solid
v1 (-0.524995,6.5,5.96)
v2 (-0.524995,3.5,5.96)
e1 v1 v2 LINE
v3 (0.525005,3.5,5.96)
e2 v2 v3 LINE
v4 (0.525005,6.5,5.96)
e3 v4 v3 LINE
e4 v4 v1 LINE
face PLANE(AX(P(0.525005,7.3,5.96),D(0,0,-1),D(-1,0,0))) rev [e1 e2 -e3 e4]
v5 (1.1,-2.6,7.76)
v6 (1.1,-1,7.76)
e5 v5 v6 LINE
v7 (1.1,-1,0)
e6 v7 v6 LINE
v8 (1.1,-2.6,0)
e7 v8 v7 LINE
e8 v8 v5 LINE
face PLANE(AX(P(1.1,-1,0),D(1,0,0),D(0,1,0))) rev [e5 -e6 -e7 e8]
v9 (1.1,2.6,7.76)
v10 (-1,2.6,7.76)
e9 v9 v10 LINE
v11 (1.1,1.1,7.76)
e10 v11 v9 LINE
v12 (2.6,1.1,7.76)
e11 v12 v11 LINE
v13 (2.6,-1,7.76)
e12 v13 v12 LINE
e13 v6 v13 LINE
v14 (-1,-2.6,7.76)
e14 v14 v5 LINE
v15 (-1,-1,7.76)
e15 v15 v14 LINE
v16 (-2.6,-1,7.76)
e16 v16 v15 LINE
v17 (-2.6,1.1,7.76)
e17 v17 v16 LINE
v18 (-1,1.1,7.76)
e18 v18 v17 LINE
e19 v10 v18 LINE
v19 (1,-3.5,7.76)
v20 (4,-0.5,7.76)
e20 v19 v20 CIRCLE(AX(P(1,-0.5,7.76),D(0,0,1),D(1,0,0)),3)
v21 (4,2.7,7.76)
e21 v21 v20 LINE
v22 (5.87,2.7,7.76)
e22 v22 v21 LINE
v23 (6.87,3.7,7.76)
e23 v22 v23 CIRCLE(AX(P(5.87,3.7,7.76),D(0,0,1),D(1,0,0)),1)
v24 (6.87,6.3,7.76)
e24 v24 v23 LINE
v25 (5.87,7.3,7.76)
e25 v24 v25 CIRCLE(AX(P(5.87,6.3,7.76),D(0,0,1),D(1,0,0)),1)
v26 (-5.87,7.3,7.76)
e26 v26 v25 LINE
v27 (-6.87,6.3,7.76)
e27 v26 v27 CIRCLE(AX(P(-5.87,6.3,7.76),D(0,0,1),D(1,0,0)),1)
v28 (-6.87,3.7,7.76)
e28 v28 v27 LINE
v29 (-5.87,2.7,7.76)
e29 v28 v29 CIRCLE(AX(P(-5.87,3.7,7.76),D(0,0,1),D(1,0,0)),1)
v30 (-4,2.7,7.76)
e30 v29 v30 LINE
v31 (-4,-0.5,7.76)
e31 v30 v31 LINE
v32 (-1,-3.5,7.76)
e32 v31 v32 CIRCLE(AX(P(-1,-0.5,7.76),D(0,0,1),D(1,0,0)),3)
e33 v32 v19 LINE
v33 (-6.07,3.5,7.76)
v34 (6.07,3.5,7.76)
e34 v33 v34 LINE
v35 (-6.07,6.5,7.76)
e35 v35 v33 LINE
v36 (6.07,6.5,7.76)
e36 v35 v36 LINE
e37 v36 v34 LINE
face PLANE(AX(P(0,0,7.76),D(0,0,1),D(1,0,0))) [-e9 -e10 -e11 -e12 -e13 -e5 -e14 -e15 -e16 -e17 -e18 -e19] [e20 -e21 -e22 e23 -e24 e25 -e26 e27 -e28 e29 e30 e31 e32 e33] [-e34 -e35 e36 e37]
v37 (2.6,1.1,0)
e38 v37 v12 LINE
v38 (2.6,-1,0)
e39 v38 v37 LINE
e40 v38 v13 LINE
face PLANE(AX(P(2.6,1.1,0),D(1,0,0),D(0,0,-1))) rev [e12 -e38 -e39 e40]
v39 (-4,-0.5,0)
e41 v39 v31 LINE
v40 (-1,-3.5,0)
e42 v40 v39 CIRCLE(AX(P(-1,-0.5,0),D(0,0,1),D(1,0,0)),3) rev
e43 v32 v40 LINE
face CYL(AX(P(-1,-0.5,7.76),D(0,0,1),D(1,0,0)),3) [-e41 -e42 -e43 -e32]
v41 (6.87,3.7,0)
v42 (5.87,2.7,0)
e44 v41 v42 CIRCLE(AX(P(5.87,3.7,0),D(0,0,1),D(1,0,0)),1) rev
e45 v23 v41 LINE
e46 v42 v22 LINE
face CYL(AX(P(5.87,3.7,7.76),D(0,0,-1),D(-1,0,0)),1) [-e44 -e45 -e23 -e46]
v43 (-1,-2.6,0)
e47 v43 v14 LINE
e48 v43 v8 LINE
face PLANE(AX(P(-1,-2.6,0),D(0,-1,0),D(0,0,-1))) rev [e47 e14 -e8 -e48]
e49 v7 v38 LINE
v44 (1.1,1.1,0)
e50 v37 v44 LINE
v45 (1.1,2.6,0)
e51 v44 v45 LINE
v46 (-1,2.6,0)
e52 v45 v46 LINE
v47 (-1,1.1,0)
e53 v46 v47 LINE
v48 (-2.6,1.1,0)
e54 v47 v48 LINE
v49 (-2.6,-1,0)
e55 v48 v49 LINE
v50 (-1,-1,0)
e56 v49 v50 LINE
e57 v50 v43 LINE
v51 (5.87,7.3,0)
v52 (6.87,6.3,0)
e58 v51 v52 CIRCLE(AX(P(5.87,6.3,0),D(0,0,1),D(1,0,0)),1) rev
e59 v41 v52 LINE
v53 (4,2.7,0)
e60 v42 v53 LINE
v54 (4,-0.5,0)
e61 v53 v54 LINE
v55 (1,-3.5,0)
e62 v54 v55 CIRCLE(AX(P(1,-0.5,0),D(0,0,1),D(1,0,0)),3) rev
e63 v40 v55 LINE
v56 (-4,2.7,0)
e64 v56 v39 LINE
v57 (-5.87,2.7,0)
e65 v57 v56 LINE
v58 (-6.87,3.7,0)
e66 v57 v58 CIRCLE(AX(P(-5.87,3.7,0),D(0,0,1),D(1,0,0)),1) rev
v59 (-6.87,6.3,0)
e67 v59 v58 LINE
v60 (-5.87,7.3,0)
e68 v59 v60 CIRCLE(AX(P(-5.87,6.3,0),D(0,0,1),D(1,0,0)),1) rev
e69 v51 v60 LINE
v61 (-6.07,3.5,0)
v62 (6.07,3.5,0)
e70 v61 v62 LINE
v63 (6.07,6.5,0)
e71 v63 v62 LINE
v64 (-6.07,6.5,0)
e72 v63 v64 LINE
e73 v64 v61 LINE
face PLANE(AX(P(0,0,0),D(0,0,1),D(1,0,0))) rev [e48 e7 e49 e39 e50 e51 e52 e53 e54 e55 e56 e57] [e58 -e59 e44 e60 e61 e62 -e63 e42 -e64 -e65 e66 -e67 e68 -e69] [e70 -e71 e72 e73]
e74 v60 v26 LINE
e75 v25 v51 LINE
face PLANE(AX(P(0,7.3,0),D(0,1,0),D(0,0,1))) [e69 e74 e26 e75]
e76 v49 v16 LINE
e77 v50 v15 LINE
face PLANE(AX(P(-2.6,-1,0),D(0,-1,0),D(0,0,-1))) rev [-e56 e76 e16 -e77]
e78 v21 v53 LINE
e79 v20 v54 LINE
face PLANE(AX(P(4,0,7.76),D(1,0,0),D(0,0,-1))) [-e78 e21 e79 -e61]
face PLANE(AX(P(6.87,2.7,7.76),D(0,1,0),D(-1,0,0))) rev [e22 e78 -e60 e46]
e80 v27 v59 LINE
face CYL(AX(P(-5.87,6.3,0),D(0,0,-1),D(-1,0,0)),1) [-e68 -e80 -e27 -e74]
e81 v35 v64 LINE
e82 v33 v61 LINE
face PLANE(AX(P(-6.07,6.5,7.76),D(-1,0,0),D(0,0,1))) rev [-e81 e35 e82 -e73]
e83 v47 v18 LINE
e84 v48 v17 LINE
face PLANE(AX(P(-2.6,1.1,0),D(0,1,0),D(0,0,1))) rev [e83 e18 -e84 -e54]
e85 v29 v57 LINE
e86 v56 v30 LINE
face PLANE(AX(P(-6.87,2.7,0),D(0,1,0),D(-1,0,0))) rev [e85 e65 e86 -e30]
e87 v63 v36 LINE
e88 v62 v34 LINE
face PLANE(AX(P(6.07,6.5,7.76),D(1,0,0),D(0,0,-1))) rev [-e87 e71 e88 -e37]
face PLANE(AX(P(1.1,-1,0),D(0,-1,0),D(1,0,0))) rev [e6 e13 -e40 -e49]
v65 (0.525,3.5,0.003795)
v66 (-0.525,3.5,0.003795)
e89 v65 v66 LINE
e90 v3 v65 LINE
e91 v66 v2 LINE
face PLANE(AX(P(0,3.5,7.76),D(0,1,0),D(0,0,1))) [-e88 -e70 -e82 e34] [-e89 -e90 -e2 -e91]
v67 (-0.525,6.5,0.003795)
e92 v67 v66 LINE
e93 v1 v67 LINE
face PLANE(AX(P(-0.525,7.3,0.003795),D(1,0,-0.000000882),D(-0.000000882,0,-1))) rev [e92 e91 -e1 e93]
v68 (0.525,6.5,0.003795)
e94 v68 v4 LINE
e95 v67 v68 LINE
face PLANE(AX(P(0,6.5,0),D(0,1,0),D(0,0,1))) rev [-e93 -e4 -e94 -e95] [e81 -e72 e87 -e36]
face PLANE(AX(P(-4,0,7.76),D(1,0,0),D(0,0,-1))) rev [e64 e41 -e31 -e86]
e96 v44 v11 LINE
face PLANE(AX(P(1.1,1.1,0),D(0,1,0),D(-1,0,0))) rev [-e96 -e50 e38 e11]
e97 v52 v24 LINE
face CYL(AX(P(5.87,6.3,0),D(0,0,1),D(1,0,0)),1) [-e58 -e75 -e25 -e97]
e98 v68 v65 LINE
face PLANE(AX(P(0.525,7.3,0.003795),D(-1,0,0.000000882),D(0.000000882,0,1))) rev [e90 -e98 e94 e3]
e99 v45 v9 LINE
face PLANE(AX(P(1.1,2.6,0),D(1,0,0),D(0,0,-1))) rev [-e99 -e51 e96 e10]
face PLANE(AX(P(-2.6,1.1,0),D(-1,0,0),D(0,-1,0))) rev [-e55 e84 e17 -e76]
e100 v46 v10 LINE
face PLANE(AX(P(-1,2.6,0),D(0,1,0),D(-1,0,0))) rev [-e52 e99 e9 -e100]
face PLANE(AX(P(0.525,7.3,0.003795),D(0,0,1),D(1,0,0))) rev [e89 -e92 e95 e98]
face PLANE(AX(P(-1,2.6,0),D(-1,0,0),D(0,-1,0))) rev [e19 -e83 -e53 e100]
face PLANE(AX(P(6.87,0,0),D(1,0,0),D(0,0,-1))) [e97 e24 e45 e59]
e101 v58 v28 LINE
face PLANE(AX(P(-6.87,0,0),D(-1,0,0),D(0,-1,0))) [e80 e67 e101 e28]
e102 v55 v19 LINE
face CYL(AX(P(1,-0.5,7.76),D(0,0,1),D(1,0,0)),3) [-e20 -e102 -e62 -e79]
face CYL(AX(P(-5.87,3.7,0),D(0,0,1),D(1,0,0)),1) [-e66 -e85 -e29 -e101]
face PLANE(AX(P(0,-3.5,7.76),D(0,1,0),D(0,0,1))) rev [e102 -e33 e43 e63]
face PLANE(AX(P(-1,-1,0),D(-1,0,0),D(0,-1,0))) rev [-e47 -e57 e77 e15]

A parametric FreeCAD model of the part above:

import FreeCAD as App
import Part
import Sketcher

V = App.Vector


def edges_at(feature, points):
    """Names of the edges that pass closest to the given points."""
    edges = feature.Shape.Edges
    near = lambda p: min(range(len(edges)), key=lambda i: edges[i].distToShape(Part.Vertex(*p))[0])
    return sorted({f"Edge{near(p) + 1}" for p in points})

doc = App.newDocument("Part")
params = doc.addObject("Spreadsheet::Sheet", "Params")
for row, (alias, value) in enumerate([
    ("sketch1_width", "8 mm"),
    ("sketch1_height", "7 mm"),
    ("pad1_length", "7.76 mm"),
    ("sketch2_width", "1.5 mm"),
    ("sketch2_width2", "2.1 mm"),
    ("sketch2_width3", "1.6 mm"),
    ("sketch3_width", "0.8 mm"),
    ("sketch3_height", "7.76 mm"),
    ("pad2_length", "2.87 mm"),
    ("sketch4_width", "0.8 mm"),
    ("sketch4_height", "7.76 mm"),
    ("pad3_length", "2.87 mm"),
    ("sketch5_width", "0.8 mm"),
    ("sketch5_height", "7.76 mm"),
    ("pad4_length", "3 mm"),
    ("sketch6_width", "0.8 mm"),
    ("sketch6_height", "7.76 mm"),
    ("pad5_length", "3 mm"),
    ("sketch7_width", "13.74 mm"),
    ("sketch7_height", "7.76 mm"),
    ("pad6_length", "0.8 mm"),
    ("sketch8_width", "1.05 mm"),
    ("fillet_radius", "1 mm"),
    ("fillet2_radius", "1 mm"),
    ("fillet3_radius", "1 mm"),
    ("fillet4_radius", "1 mm"),
    ("fillet5_radius", "3 mm"),
    ("fillet6_radius", "3 mm"),
], start=1):
    params.set(f"A{row}", alias)
    params.set(f"B{row}", "=" + value)
    params.setAlias(f"B{row}", alias)

body = doc.addObject("PartDesign::Body", "Body")

sketch1 = body.newObject("Sketcher::SketchObject", "Sketch")
sketch1.AttachmentSupport = (doc.getObject("XY_Plane"), [""])
sketch1.MapMode = "FlatFace"
sketch1.addGeometry([
    Part.LineSegment(V(-4, 4, 0), V(-4, -4, 0)),
    Part.LineSegment(V(-4, -4, 0), V(4, -4, 0)),
    Part.LineSegment(V(4, -4, 0), V(4, 4, 0)),
    Part.LineSegment(V(4, 4, 0), V(-4, 4, 0)),
], False)
sketch1.addConstraint([
    Sketcher.Constraint("Coincident", 0, 2, 1, 1),
    Sketcher.Constraint("Coincident", 1, 2, 2, 1),
    Sketcher.Constraint("Coincident", 2, 2, 3, 1),
    Sketcher.Constraint("Coincident", 3, 2, 0, 1),
    Sketcher.Constraint("Vertical", 0),
    Sketcher.Constraint("Horizontal", 1),
    Sketcher.Constraint("Vertical", 2),
    Sketcher.Constraint("Horizontal", 3),
    Sketcher.Constraint("Symmetric", 0, 2, 2, 2, -1, 1),
    Sketcher.Constraint("DistanceX", 1, 1, 1, 2, 8.0),
    Sketcher.Constraint("DistanceY", 0, 2, 0, 1, 7.0),
])
sketch1.setExpression("Constraints[9]", "Params.sketch1_width")
sketch1.setExpression("Constraints[10]", "Params.sketch1_height")
pad1 = body.newObject("PartDesign::Pad", "Pad")
pad1.Profile = sketch1
pad1.setExpression("Length", "Params.pad1_length")

sketch2 = body.newObject("Sketcher::SketchObject", "Sketch001")
sketch2.AttachmentSupport = (doc.getObject("XY_Plane"), [""])
sketch2.MapMode = "FlatFace"
sketch2.AttachmentOffset = App.Placement(V(0, 0, 7.76), App.Rotation())
sketch2.addGeometry([
    Part.LineSegment(V(1.1, -1, 0), V(2.6, -1, 0)),
    Part.LineSegment(V(2.6, -1, 0), V(2.6, 1.1, 0)),
    Part.LineSegment(V(2.6, 1.1, 0), V(1.1, 1.1, 0)),
    Part.LineSegment(V(1.1, 1.1, 0), V(1.1, 2.6, 0)),
    Part.LineSegment(V(1.1, 2.6, 0), V(-1, 2.6, 0)),
    Part.LineSegment(V(-1, 2.6, 0), V(-1, 1.1, 0)),
    Part.LineSegment(V(-1, 1.1, 0), V(-2.6, 1.1, 0)),
    Part.LineSegment(V(-2.6, 1.1, 0), V(-2.6, -1, 0)),
    Part.LineSegment(V(-2.6, -1, 0), V(-1, -1, 0)),
    Part.LineSegment(V(-1, -1, 0), V(-1, -2.6, 0)),
    Part.LineSegment(V(-1, -2.6, 0), V(1.1, -2.6, 0)),
    Part.LineSegment(V(1.1, -2.6, 0), V(1.1, -1, 0)),
], False)
sketch2.addConstraint([
    Sketcher.Constraint("Coincident", 0, 2, 1, 1),
    Sketcher.Constraint("Coincident", 1, 2, 2, 1),
    Sketcher.Constraint("Coincident", 2, 2, 3, 1),
    Sketcher.Constraint("Coincident", 3, 2, 4, 1),
    Sketcher.Constraint("Coincident", 4, 2, 5, 1),
    Sketcher.Constraint("Coincident", 5, 2, 6, 1),
    Sketcher.Constraint("Coincident", 6, 2, 7, 1),
    Sketcher.Constraint("Coincident", 7, 2, 8, 1),
    Sketcher.Constraint("Coincident", 8, 2, 9, 1),
    Sketcher.Constraint("Coincident", 9, 2, 10, 1),
    Sketcher.Constraint("Coincident", 10, 2, 11, 1),
    Sketcher.Constraint("Coincident", 11, 2, 0, 1),
    Sketcher.Constraint("Horizontal", 0),
    Sketcher.Constraint("Vertical", 1),
    Sketcher.Constraint("Horizontal", 2),
    Sketcher.Constraint("Vertical", 3),
    Sketcher.Constraint("Horizontal", 4),
    Sketcher.Constraint("Vertical", 5),
    Sketcher.Constraint("Horizontal", 6),
    Sketcher.Constraint("Vertical", 7),
    Sketcher.Constraint("Horizontal", 8),
    Sketcher.Constraint("Vertical", 9),
    Sketcher.Constraint("Horizontal", 10),
    Sketcher.Constraint("Vertical", 11),
    Sketcher.Constraint("Symmetric", 1, 2, 6, 2, -2),
    Sketcher.Constraint("Symmetric", 4, 2, 9, 2, -1),
    Sketcher.Constraint("Horizontal", 0, 2, 7, 2),
    Sketcher.Constraint("Vertical", 3, 2, 10, 2),
    Sketcher.Constraint("Equal", 10, 1),
    Sketcher.Constraint("Equal", 2, 3),
    Sketcher.Constraint("Equal", 8, 9),
    Sketcher.Constraint("DistanceX", 0, 1, 0, 2, 1.5),
    Sketcher.Constraint("DistanceX", 4, 2, 4, 1, 2.1),
    Sketcher.Constraint("DistanceX", 6, 2, 6, 1, 1.6),
])
sketch2.setExpression("Constraints[31]", "Params.sketch2_width")
sketch2.setExpression("Constraints[32]", "Params.sketch2_width2")
sketch2.setExpression("Constraints[33]", "Params.sketch2_width3")
pocket1 = body.newObject("PartDesign::Pocket", "Pocket")
pocket1.Profile = sketch2
pocket1.Type = "ThroughAll"

sketch3 = body.newObject("Sketcher::SketchObject", "Sketch002")
sketch3.AttachmentSupport = (doc.getObject("YZ_Plane"), [""])
sketch3.MapMode = "FlatFace"
sketch3.AttachmentOffset = App.Placement(V(0, 0, -4), App.Rotation())
sketch3.addGeometry([
    Part.LineSegment(V(3.5, 0, 0), V(2.7, 0, 0)),
    Part.LineSegment(V(2.7, 0, 0), V(2.7, 7.8, 0)),
    Part.LineSegment(V(2.7, 7.8, 0), V(3.5, 7.8, 0)),
    Part.LineSegment(V(3.5, 7.8, 0), V(3.5, 0, 0)),
], False)
sketch3.addConstraint([
    Sketcher.Constraint("Coincident", 0, 2, 1, 1),
    Sketcher.Constraint("Coincident", 1, 2, 2, 1),
    Sketcher.Constraint("Coincident", 2, 2, 3, 1),
    Sketcher.Constraint("Coincident", 3, 2, 0, 1),
    Sketcher.Constraint("Horizontal", 0),
    Sketcher.Constraint("Vertical", 1),
    Sketcher.Constraint("Horizontal", 2),
    Sketcher.Constraint("Vertical", 3),
    Sketcher.Constraint("PointOnObject", 0, 2, -1),
    Sketcher.Constraint("DistanceX", 0, 2, 0, 1, 0.8),
    Sketcher.Constraint("DistanceY", 1, 1, 1, 2, 7.76),
    Sketcher.Constraint("DistanceX", -1, 1, 0, 2, 2.7),
])
sketch3.setExpression("Constraints[9]", "Params.sketch3_width")
sketch3.setExpression("Constraints[10]", "Params.sketch3_height")
pad2 = body.newObject("PartDesign::Pad", "Pad001")
pad2.Profile = sketch3
pad2.setExpression("Length", "Params.pad2_length")
pad2.Reversed = True

sketch4 = body.newObject("Sketcher::SketchObject", "Sketch003")
sketch4.AttachmentSupport = (doc.getObject("YZ_Plane"), [""])
sketch4.MapMode = "FlatFace"
sketch4.AttachmentOffset = App.Placement(V(0, 0, 4), App.Rotation())
sketch4.addGeometry([
    Part.LineSegment(V(3.5, 7.8, 0), V(2.7, 7.8, 0)),
    Part.LineSegment(V(2.7, 7.8, 0), V(2.7, 0, 0)),
    Part.LineSegment(V(2.7, 0, 0), V(3.5, 0, 0)),
    Part.LineSegment(V(3.5, 0, 0), V(3.5, 7.8, 0)),
], False)
sketch4.addConstraint([
    Sketcher.Constraint("Coincident", 0, 2, 1, 1),
    Sketcher.Constraint("Coincident", 1, 2, 2, 1),
    Sketcher.Constraint("Coincident", 2, 2, 3, 1),
    Sketcher.Constraint("Coincident", 3, 2, 0, 1),
    Sketcher.Constraint("Horizontal", 0),
    Sketcher.Constraint("Vertical", 1),
    Sketcher.Constraint("Horizontal", 2),
    Sketcher.Constraint("Vertical", 3),
    Sketcher.Constraint("PointOnObject", 1, 2, -1),
    Sketcher.Constraint("DistanceX", 0, 2, 0, 1, 0.8),
    Sketcher.Constraint("DistanceY", 1, 2, 1, 1, 7.76),
    Sketcher.Constraint("DistanceX", -1, 1, 0, 2, 2.7),
])
sketch4.setExpression("Constraints[9]", "Params.sketch4_width")
sketch4.setExpression("Constraints[10]", "Params.sketch4_height")
pad3 = body.newObject("PartDesign::Pad", "Pad002")
pad3.Profile = sketch4
pad3.setExpression("Length", "Params.pad3_length")

sketch5 = body.newObject("Sketcher::SketchObject", "Sketch004")
sketch5.AttachmentSupport = (doc.getObject("XZ_Plane"), [""])
sketch5.MapMode = "FlatFace"
sketch5.AttachmentOffset = App.Placement(V(0, 0, -3.5), App.Rotation())
sketch5.addGeometry([
    Part.LineSegment(V(6.1, 0, 0), V(6.1, 7.8, 0)),
    Part.LineSegment(V(6.1, 7.8, 0), V(6.9, 7.8, 0)),
    Part.LineSegment(V(6.9, 7.8, 0), V(6.9, 0, 0)),
    Part.LineSegment(V(6.9, 0, 0), V(6.1, 0, 0)),
], False)
sketch5.addConstraint([
    Sketcher.Constraint("Coincident", 0, 2, 1, 1),
    Sketcher.Constraint("Coincident", 1, 2, 2, 1),
    Sketcher.Constraint("Coincident", 2, 2, 3, 1),
    Sketcher.Constraint("Coincident", 3, 2, 0, 1),
    Sketcher.Constraint("Vertical", 0),
    Sketcher.Constraint("Horizontal", 1),
    Sketcher.Constraint("Vertical", 2),
    Sketcher.Constraint("Horizontal", 3),
    Sketcher.Constraint("PointOnObject", 2, 2, -1),
    Sketcher.Constraint("DistanceX", 1, 1, 1, 2, 0.8),
    Sketcher.Constraint("DistanceY", 0, 1, 0, 2, 7.76),
    Sketcher.Constraint("DistanceX", -1, 1, 0, 2, 6.07),
])
sketch5.setExpression("Constraints[9]", "Params.sketch5_width")
sketch5.setExpression("Constraints[10]", "Params.sketch5_height")
pad4 = body.newObject("PartDesign::Pad", "Pad003")
pad4.Profile = sketch5
pad4.setExpression("Length", "Params.pad4_length")
pad4.Reversed = True

sketch6 = body.newObject("Sketcher::SketchObject", "Sketch005")
sketch6.AttachmentSupport = (doc.getObject("XZ_Plane"), [""])
sketch6.MapMode = "FlatFace"
sketch6.AttachmentOffset = App.Placement(V(0, 0, -3.5), App.Rotation())
sketch6.addGeometry([
    Part.LineSegment(V(-6.9, 0, 0), V(-6.9, 7.8, 0)),
    Part.LineSegment(V(-6.9, 7.8, 0), V(-6.1, 7.8, 0)),
    Part.LineSegment(V(-6.1, 7.8, 0), V(-6.1, 0, 0)),
    Part.LineSegment(V(-6.1, 0, 0), V(-6.9, 0, 0)),
], False)
sketch6.addConstraint([
    Sketcher.Constraint("Coincident", 0, 2, 1, 1),
    Sketcher.Constraint("Coincident", 1, 2, 2, 1),
    Sketcher.Constraint("Coincident", 2, 2, 3, 1),
    Sketcher.Constraint("Coincident", 3, 2, 0, 1),
    Sketcher.Constraint("Vertical", 0),
    Sketcher.Constraint("Horizontal", 1),
    Sketcher.Constraint("Vertical", 2),
    Sketcher.Constraint("Horizontal", 3),
    Sketcher.Constraint("PointOnObject", 2, 2, -1),
    Sketcher.Constraint("DistanceX", 1, 1, 1, 2, 0.8),
    Sketcher.Constraint("DistanceY", 0, 1, 0, 2, 7.76),
    Sketcher.Constraint("DistanceX", 0, 2, -1, 1, 6.87),
])
sketch6.setExpression("Constraints[9]", "Params.sketch6_width")
sketch6.setExpression("Constraints[10]", "Params.sketch6_height")
pad5 = body.newObject("PartDesign::Pad", "Pad004")
pad5.Profile = sketch6
pad5.setExpression("Length", "Params.pad5_length")
pad5.Reversed = True

sketch7 = body.newObject("Sketcher::SketchObject", "Sketch006")
sketch7.AttachmentSupport = (doc.getObject("XZ_Plane"), [""])
sketch7.MapMode = "FlatFace"
sketch7.AttachmentOffset = App.Placement(V(0, 0, -6.5), App.Rotation())
sketch7.addGeometry([
    Part.LineSegment(V(-7, 0, 0), V(-7, 8, 0)),
    Part.LineSegment(V(-7, 8, 0), V(7, 8, 0)),
    Part.LineSegment(V(7, 8, 0), V(7, 0, 0)),
    Part.LineSegment(V(7, 0, 0), V(-7, 0, 0)),
], False)
sketch7.addConstraint([
    Sketcher.Constraint("Coincident", 0, 2, 1, 1),
    Sketcher.Constraint("Coincident", 1, 2, 2, 1),
    Sketcher.Constraint("Coincident", 2, 2, 3, 1),
    Sketcher.Constraint("Coincident", 3, 2, 0, 1),
    Sketcher.Constraint("Vertical", 0),
    Sketcher.Constraint("Horizontal", 1),
    Sketcher.Constraint("Vertical", 2),
    Sketcher.Constraint("Horizontal", 3),
    Sketcher.Constraint("Symmetric", 2, 2, 3, 2, -1, 1),
    Sketcher.Constraint("DistanceX", 1, 1, 1, 2, 13.74),
    Sketcher.Constraint("DistanceY", 0, 1, 0, 2, 7.76),
])
sketch7.setExpression("Constraints[9]", "Params.sketch7_width")
sketch7.setExpression("Constraints[10]", "Params.sketch7_height")
pad6 = body.newObject("PartDesign::Pad", "Pad005")
pad6.Profile = sketch7
pad6.setExpression("Length", "Params.pad6_length")
pad6.Reversed = True

sketch8 = body.newObject("Sketcher::SketchObject", "Sketch007")
sketch8.AttachmentSupport = (doc.getObject("XZ_Plane"), [""])
sketch8.MapMode = "FlatFace"
sketch8.AttachmentOffset = App.Placement(V(0, 0, -3.5), App.Rotation())
sketch8.addGeometry([
    Part.LineSegment(V(0.5, 0, 0), V(-0.5, 0, 0)),
    Part.LineSegment(V(-0.5, 0, 0), V(-0.5, 6, 0)),
    Part.LineSegment(V(-0.5, 6, 0), V(0.5, 6, 0)),
    Part.LineSegment(V(0.5, 6, 0), V(0.5, 0, 0)),
], False)
sketch8.addConstraint([
    Sketcher.Constraint("Coincident", 0, 2, 1, 1),
    Sketcher.Constraint("Coincident", 1, 2, 2, 1),
    Sketcher.Constraint("Coincident", 2, 2, 3, 1),
    Sketcher.Constraint("Coincident", 3, 2, 0, 1),
    Sketcher.Constraint("Horizontal", 0),
    Sketcher.Constraint("Horizontal", 2),
    Sketcher.Constraint("Parallel", 1, 3),
    Sketcher.Constraint("DistanceX", 0, 2, 0, 1, 1.05),
    Sketcher.Constraint("DistanceY", -1, 1, 1, 2, 5.96),
    Sketcher.Constraint("DistanceX", 0, 2, -1, 1, 0.525),
    Sketcher.Constraint("Distance", 1, 5.956205),
    Sketcher.Constraint("DistanceX", 1, 2, -1, 1, 0.524995),
])
sketch8.setExpression("Constraints[7]", "Params.sketch8_width")
pad7 = body.newObject("PartDesign::Pad", "Pad006")
pad7.Profile = sketch8
pad7.Type = "UpToFirst"
pad7.Reversed = True
doc.recompute()

fillet = body.newObject("PartDesign::Fillet", "Fillet")
fillet.Base = (pad7, edges_at(pad7, [(-6.87, 7.3, 3.88)]))
fillet.setExpression("Radius", "Params.fillet_radius")
doc.recompute()

fillet2 = body.newObject("PartDesign::Fillet", "Fillet001")
fillet2.Base = (fillet, edges_at(fillet, [(6.87, 7.3, 3.88)]))
fillet2.setExpression("Radius", "Params.fillet2_radius")
doc.recompute()

fillet3 = body.newObject("PartDesign::Fillet", "Fillet002")
fillet3.Base = (fillet2, edges_at(fillet2, [(-6.87, 2.7, 3.88)]))
fillet3.setExpression("Radius", "Params.fillet3_radius")
doc.recompute()

fillet4 = body.newObject("PartDesign::Fillet", "Fillet003")
fillet4.Base = (fillet3, edges_at(fillet3, [(6.87, 2.7, 3.88)]))
fillet4.setExpression("Radius", "Params.fillet4_radius")
doc.recompute()

fillet5 = body.newObject("PartDesign::Fillet", "Fillet004")
fillet5.Base = (fillet4, edges_at(fillet4, [(4, -3.5, 3.88)]))
fillet5.setExpression("Radius", "Params.fillet5_radius")
doc.recompute()

fillet6 = body.newObject("PartDesign::Fillet", "Fillet005")
fillet6.Base = (fillet5, edges_at(fillet5, [(-4, -3.5, 3.88)]))
fillet6.setExpression("Radius", "Params.fillet6_radius")

doc.recompute()
